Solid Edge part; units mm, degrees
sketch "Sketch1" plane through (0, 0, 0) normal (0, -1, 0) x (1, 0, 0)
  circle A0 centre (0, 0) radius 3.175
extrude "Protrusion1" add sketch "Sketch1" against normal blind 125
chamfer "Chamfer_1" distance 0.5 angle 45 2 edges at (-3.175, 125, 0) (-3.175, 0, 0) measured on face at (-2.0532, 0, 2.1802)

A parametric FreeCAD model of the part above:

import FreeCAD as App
import Part
import Sketcher

V = App.Vector
Q = App.Units.Quantity


def edges_at(feature, points):
    """Names of the edges that pass closest to the given points."""
    edges = feature.Shape.Edges
    near = lambda p: min(range(len(edges)), key=lambda i: edges[i].distToShape(Part.Vertex(*p))[0])
    return sorted({f"Edge{near(p) + 1}" for p in points})

doc = App.newDocument("Part")
body = doc.addObject("PartDesign::Body", "Body")

# Sketch on XZ plane
sketch1 = body.newObject("Sketcher::SketchObject", "Sketch")
sketch1.AttachmentSupport = (doc.getObject("XZ_Plane"), [""])
sketch1.MapMode = "FlatFace"
sketch1.addGeometry(Part.Circle(V(0, 0, 0), V(0, 0, 1), 3.175), False)
sketch1.addConstraint(Sketcher.Constraint("Coincident", 0, 3, -1, 1))
sketch1.addConstraint(Sketcher.Constraint("Diameter", 0, Q("6.35 mm")))
pad1 = body.newObject("PartDesign::Pad", "Pad")
pad1.Profile = sketch1
pad1.Length = 125
pad1.Reversed = True
doc.recompute()

chamfer = body.newObject("PartDesign::Chamfer", "Chamfer")
chamfer.Base = (pad1, edges_at(pad1, [(-3.175, 125, 0), (-3.175, 0, 0)]))
chamfer.Size = 0.5

doc.recompute()
